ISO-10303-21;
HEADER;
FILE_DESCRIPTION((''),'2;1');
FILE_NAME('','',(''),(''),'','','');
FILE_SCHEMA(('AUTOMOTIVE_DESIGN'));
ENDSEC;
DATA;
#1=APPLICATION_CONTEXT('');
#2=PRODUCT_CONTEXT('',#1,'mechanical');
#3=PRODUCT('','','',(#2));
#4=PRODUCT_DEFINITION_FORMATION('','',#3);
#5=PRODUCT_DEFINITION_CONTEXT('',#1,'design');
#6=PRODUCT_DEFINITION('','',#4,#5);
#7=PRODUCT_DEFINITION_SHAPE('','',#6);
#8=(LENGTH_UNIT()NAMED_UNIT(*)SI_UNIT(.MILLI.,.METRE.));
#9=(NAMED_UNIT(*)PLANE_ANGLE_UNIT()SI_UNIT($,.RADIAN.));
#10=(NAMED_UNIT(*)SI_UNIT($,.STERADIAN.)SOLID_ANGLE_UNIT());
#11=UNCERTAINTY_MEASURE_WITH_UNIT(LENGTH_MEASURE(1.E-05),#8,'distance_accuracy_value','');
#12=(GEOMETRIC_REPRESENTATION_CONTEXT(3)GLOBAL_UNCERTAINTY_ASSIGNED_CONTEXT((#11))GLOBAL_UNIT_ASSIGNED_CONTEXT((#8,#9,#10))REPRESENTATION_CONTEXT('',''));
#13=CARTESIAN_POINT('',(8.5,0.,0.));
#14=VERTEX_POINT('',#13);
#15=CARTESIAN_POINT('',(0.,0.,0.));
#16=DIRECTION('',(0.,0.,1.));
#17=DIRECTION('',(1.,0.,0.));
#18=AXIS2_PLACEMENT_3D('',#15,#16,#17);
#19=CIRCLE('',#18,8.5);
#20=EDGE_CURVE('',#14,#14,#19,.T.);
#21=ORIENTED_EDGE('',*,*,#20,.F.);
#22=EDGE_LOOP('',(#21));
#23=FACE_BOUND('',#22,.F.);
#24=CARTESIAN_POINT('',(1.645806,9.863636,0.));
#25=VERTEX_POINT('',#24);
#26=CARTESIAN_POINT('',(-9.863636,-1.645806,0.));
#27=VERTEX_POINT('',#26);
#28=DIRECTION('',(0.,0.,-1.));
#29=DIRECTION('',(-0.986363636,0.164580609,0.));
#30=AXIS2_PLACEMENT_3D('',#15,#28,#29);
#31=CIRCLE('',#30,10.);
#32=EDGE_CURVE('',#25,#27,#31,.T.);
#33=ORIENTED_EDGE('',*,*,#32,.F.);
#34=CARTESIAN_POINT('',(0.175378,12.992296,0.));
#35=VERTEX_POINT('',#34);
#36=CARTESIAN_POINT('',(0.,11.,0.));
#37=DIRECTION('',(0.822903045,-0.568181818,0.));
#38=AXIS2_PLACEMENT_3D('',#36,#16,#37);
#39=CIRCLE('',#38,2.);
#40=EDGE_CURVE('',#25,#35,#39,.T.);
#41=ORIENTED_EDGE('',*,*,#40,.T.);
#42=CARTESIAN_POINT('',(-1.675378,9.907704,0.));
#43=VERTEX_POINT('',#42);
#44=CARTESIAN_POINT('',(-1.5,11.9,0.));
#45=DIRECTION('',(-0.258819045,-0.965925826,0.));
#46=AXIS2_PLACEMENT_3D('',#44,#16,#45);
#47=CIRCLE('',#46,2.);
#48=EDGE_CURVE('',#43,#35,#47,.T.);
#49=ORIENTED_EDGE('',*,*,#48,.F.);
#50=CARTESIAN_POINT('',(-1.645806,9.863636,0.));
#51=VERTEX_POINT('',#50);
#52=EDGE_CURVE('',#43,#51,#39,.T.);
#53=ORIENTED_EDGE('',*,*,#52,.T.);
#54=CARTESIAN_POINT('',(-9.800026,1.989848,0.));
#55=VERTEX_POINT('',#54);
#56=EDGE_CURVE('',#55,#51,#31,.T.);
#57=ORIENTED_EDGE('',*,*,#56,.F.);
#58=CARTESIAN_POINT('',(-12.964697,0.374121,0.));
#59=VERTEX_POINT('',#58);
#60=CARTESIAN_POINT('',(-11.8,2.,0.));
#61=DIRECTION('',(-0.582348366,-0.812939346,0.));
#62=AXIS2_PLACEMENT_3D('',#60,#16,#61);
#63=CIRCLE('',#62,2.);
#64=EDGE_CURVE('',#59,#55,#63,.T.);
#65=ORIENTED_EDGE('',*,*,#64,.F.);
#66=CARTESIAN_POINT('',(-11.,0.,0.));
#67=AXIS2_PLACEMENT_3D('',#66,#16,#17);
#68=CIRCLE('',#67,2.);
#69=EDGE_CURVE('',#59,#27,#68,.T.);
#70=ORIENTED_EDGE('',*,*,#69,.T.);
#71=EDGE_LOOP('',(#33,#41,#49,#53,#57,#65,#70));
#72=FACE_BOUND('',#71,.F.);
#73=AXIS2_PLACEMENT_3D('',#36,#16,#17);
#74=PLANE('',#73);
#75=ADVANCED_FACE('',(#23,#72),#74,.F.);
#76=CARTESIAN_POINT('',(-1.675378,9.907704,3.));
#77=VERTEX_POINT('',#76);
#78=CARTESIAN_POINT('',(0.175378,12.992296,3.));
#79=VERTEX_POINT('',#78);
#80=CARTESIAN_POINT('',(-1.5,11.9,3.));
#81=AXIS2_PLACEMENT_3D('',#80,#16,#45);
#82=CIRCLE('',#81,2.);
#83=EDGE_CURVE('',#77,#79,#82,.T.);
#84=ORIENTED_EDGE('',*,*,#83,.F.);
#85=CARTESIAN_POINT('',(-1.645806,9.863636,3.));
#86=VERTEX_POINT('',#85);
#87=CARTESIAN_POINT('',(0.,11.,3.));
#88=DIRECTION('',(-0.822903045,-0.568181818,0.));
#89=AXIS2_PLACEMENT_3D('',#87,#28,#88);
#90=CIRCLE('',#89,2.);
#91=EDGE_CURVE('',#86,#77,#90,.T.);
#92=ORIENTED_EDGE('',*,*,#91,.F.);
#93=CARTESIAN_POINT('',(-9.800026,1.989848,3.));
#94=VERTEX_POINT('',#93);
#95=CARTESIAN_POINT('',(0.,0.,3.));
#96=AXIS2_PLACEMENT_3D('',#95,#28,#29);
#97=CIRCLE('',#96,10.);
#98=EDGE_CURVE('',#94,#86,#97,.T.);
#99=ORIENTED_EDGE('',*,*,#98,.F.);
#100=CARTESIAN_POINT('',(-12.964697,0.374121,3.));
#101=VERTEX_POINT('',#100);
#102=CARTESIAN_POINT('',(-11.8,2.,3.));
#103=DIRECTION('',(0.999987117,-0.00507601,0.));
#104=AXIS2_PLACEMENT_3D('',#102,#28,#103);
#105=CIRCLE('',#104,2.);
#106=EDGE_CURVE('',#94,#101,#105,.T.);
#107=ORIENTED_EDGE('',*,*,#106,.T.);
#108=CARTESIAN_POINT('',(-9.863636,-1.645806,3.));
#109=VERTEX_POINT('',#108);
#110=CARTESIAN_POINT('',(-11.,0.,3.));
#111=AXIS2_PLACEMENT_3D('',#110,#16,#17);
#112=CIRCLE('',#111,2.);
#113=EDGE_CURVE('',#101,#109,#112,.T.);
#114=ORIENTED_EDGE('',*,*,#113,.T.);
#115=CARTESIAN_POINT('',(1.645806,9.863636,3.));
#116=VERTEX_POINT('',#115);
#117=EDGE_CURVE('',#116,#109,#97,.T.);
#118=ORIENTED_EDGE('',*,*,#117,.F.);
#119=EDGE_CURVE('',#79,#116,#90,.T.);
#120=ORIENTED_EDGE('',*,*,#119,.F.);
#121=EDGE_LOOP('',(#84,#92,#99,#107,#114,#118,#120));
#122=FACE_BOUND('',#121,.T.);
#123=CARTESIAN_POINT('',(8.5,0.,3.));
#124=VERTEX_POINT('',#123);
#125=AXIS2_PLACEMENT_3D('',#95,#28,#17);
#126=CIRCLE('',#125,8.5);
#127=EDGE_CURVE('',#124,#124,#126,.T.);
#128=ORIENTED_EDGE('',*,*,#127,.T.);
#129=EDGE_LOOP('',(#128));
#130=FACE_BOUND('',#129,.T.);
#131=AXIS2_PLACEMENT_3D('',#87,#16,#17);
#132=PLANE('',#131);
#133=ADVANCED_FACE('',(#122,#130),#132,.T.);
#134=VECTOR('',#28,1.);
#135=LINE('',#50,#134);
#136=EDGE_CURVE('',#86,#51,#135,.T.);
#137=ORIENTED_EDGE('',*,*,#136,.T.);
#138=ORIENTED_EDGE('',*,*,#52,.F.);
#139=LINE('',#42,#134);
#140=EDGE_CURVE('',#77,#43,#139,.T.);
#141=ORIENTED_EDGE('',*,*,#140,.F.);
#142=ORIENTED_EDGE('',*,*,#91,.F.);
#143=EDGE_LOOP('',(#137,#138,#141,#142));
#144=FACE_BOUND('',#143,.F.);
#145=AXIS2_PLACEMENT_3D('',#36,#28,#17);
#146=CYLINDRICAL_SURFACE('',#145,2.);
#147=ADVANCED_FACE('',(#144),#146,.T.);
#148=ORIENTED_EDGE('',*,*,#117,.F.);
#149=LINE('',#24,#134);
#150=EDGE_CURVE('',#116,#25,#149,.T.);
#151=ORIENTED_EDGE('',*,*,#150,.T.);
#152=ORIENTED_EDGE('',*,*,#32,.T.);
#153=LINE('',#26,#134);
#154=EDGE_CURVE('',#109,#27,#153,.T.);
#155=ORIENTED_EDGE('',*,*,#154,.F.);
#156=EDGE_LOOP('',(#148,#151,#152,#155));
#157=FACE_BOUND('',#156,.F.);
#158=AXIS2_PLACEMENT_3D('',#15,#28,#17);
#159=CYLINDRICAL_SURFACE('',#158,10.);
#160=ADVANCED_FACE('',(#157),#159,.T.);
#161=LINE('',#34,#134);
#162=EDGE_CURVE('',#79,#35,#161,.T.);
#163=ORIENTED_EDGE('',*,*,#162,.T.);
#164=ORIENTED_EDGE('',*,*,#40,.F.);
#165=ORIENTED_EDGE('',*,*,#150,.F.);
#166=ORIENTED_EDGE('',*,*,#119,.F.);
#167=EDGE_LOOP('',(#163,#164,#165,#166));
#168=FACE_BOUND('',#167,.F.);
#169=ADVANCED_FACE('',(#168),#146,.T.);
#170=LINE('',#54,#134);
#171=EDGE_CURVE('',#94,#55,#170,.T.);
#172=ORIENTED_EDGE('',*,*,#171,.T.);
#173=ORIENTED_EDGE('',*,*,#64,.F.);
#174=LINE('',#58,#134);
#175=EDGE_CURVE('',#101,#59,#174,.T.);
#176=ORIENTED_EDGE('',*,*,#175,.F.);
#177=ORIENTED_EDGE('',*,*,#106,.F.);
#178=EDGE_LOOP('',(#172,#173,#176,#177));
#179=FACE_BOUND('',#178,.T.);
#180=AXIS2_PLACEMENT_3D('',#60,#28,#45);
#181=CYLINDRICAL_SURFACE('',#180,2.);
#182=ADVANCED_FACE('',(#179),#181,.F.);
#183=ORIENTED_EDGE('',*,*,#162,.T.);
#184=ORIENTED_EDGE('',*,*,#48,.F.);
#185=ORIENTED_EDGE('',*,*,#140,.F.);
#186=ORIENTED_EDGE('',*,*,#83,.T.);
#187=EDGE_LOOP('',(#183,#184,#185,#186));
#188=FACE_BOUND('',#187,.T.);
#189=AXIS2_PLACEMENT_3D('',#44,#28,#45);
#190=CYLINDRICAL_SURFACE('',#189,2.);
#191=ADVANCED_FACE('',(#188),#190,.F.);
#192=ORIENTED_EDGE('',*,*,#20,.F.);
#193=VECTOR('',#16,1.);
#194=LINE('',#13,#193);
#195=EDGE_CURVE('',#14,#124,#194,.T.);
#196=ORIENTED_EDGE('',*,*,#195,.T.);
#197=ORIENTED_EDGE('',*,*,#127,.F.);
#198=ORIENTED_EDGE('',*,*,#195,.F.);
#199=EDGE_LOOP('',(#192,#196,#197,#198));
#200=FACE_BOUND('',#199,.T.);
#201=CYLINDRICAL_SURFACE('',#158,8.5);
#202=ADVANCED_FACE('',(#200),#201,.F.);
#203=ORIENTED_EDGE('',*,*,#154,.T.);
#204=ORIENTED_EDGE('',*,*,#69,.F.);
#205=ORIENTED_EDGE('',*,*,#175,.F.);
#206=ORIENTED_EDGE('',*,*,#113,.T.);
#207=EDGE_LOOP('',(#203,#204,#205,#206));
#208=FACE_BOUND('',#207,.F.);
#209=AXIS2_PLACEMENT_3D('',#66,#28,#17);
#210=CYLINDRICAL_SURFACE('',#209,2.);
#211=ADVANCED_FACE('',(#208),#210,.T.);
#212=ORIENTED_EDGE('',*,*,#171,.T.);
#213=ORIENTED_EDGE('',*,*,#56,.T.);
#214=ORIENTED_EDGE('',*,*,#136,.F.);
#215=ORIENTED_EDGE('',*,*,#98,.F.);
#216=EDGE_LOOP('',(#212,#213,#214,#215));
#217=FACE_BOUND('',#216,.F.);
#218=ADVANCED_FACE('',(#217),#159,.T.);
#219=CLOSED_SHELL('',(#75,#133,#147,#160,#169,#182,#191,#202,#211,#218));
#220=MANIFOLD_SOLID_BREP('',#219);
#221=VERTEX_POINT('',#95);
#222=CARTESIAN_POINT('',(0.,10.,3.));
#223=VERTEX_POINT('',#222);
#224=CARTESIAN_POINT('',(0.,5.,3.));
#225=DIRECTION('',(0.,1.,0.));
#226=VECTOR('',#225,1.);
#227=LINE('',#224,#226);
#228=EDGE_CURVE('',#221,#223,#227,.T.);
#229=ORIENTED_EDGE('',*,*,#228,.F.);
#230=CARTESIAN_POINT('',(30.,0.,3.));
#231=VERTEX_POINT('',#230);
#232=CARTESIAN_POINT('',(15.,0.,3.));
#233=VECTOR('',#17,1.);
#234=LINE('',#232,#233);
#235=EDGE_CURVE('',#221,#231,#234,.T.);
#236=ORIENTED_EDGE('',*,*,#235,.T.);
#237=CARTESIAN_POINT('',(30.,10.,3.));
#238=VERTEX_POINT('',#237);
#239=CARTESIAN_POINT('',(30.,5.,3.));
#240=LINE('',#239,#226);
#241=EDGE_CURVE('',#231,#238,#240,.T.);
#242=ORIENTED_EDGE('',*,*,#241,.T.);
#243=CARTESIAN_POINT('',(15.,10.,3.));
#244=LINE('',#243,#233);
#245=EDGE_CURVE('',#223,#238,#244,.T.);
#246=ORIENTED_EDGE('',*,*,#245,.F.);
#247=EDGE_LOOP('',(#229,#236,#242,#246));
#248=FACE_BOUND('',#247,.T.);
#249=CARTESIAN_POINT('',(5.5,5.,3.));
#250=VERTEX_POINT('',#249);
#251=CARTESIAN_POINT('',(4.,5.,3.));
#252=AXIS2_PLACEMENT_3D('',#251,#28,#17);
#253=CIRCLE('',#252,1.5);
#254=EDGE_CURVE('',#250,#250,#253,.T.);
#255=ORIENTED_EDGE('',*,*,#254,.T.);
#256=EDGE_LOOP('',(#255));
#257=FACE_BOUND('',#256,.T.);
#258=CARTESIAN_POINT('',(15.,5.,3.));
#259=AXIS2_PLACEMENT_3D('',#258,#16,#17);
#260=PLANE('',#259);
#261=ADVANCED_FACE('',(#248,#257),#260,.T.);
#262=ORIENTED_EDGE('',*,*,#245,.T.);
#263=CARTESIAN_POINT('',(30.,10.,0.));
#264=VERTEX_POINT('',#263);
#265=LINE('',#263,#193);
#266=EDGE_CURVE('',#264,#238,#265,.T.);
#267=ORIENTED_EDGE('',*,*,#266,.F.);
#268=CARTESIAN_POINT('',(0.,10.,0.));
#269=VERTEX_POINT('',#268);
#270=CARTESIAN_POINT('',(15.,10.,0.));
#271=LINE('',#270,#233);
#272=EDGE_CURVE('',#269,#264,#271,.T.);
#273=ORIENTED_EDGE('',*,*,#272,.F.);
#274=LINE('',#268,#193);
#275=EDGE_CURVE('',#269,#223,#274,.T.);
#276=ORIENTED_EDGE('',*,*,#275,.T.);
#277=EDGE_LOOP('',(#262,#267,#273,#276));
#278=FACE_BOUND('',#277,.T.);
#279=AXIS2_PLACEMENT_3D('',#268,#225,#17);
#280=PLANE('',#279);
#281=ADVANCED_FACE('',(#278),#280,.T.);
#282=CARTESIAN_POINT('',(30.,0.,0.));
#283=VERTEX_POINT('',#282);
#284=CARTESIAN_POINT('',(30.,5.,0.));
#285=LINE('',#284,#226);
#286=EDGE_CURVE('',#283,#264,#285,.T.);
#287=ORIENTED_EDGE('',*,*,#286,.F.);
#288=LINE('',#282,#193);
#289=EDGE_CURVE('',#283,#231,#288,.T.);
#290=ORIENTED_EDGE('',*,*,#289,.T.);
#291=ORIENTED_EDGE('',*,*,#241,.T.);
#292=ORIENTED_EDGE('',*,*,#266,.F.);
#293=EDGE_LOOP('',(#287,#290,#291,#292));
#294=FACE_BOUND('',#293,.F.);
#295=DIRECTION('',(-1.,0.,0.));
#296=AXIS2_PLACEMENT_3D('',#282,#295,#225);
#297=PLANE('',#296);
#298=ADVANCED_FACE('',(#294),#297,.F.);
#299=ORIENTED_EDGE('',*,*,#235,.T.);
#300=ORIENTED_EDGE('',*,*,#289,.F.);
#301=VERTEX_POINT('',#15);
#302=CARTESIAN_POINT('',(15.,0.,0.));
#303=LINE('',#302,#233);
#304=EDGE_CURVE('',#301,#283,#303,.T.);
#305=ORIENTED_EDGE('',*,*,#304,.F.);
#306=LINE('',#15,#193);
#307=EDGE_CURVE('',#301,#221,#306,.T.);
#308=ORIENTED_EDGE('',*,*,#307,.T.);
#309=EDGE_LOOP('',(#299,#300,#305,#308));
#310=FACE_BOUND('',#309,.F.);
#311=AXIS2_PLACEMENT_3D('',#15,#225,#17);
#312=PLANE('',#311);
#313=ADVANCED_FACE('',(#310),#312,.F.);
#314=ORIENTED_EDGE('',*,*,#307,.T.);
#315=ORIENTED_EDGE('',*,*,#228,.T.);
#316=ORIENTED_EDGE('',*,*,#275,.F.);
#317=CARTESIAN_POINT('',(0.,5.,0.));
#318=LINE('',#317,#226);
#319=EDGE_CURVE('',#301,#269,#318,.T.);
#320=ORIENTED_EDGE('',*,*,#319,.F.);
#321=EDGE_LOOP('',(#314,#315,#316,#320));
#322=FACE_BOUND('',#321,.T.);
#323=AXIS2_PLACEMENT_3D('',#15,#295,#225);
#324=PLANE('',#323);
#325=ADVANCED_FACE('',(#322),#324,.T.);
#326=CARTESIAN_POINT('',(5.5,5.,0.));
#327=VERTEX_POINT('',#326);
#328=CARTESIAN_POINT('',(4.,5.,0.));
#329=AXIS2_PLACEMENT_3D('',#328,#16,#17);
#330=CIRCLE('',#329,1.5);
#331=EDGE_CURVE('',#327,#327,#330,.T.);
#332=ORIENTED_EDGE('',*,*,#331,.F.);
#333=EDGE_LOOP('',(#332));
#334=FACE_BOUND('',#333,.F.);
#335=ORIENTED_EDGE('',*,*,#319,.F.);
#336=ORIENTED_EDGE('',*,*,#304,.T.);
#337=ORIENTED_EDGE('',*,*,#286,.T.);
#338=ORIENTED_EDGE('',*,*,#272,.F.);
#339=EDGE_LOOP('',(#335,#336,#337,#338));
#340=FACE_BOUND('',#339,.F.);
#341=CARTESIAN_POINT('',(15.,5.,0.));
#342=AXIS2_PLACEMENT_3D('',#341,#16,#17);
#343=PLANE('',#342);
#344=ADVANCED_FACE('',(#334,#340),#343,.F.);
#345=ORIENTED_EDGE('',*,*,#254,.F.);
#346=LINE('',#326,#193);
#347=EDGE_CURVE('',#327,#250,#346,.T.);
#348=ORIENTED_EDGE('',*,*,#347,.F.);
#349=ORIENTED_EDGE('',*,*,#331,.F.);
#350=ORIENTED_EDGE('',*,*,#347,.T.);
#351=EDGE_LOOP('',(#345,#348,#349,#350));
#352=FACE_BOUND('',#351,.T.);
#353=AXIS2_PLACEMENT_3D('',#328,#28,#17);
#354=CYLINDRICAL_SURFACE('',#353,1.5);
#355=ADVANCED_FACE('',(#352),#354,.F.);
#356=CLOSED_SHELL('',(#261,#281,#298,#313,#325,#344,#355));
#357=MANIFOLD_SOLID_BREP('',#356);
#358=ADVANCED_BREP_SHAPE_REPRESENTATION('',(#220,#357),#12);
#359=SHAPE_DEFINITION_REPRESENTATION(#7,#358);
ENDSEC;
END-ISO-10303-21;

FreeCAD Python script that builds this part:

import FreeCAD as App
import Part
import Sketcher
Q = App.Units.Quantity


def add_polygon(sketch, points):
    """Adds a closed chain of lines whose ends are joined by coincident constraints."""
    first, n = sketch.GeometryCount, len(points)
    for a, b in zip(points, points[1:] + points[:1]):
        sketch.addGeometry(Part.LineSegment(App.Vector(*a, 0), App.Vector(*b, 0)), False)
    for i in range(n):
        sketch.addConstraint(Sketcher.Constraint("Coincident", first + i, 2, first + (i + 1) % n, 1))

doc = App.newDocument("Part")
body = doc.addObject("PartDesign::Body", "Body")

# Sketch on XY plane
sketch1 = body.newObject("Sketcher::SketchObject", "Sketch")
sketch1.AttachmentSupport = (doc.getObject("XY_Plane"), [""])
sketch1.MapMode = "FlatFace"
sketch1.addGeometry(Part.Circle(App.Vector(4, 5, 0), App.Vector(0, 0, 1), 1.5), False)
sketch1.addConstraint([
    Sketcher.Constraint("Diameter", 0, Q("3 mm")),
    Sketcher.Constraint("DistanceX", -1, 1, 0, 3, Q("4 mm")),
    Sketcher.Constraint("DistanceY", -1, 1, 0, 3, Q("5 mm")),
])
pad1 = body.newObject("PartDesign::Pad", "Pad")
pad1.Profile = sketch1
pad1.Length = 10
body2 = doc.addObject("PartDesign::Body", "Body001")

# Sketch on XY plane
sketch2 = body2.newObject("Sketcher::SketchObject", "Sketch001")
sketch2.AttachmentSupport = (doc.getObject("XY_Plane001"), [""])
sketch2.MapMode = "FlatFace"
add_polygon(sketch2, [(0, 10), (0, 0), (30, 0), (30, 10)])  # lines 0-3
sketch2.addConstraint([
    Sketcher.Constraint("Vertical", 0),
    Sketcher.Constraint("Horizontal", 1),
    Sketcher.Constraint("Vertical", 2),
    Sketcher.Constraint("Horizontal", 3),
    Sketcher.Constraint("Coincident", 0, 2, -1, 1),
    Sketcher.Constraint("DistanceX", 1, 1, 1, 2, Q("30 mm")),
    Sketcher.Constraint("DistanceY", 0, 2, 0, 1, Q("10 mm")),
])
pad2 = body2.newObject("PartDesign::Pad", "Pad001")
pad2.Profile = sketch2
pad2.Length = 3
doc.recompute()

boolean = body2.newObject("PartDesign::Boolean", "Boolean")
boolean.Type = "Cut"
boolean.addObjects([body])
body3 = doc.addObject("PartDesign::Body", "Body002")

# Sketch on XY plane
sketch3 = body3.newObject("Sketcher::SketchObject", "Sketch002")
sketch3.AttachmentSupport = (doc.getObject("XY_Plane002"), [""])
sketch3.MapMode = "FlatFace"
sketch3.addGeometry(Part.Circle(App.Vector(0, 0, 0), App.Vector(0, 0, 1), 2), False)
sketch3.addConstraint([
    Sketcher.Constraint("Coincident", 0, 3, -1, 1),
    Sketcher.Constraint("Diameter", 0, Q("4 mm")),
])
pad3 = body3.newObject("PartDesign::Pad", "Pad002")
pad3.Profile = sketch3
pad3.Length = 3
body4 = doc.addObject("PartDesign::Body", "Body003")
doc.recompute()

body3.Placement = App.Placement(App.Vector(-11.8, 2, 0), App.Rotation(App.Vector(0, 0, -1), 105))
boolean2 = body4.newObject("PartDesign::Boolean", "Boolean001")
boolean2.Type = "Fuse"
boolean2.addObjects([body3])
body5 = doc.addObject("PartDesign::Body", "Body004")

# Sketch on XY plane
sketch4 = body5.newObject("Sketcher::SketchObject", "Sketch003")
sketch4.AttachmentSupport = (doc.getObject("XY_Plane004"), [""])
sketch4.MapMode = "FlatFace"
sketch4.addGeometry(Part.Circle(App.Vector(0, 0, 0), App.Vector(0, 0, 1), 2), False)
sketch4.addConstraint([
    Sketcher.Constraint("Coincident", 0, 3, -1, 1),
    Sketcher.Constraint("Diameter", 0, Q("4 mm")),
])
pad4 = body5.newObject("PartDesign::Pad", "Pad003")
pad4.Profile = sketch4
pad4.Length = 3
body6 = doc.addObject("PartDesign::Body", "Body005")
doc.recompute()

body5.Placement = App.Placement(App.Vector(-1.5, 11.9, 0), App.Rotation(App.Vector(0, 0, -1), 105))
boolean3 = body6.newObject("PartDesign::Boolean", "Boolean002")
boolean3.Type = "Fuse"
boolean3.addObjects([body5])
body7 = doc.addObject("PartDesign::Body", "Body006")

# Sketch on XY plane
sketch5 = body7.newObject("Sketcher::SketchObject", "Sketch004")
sketch5.AttachmentSupport = (doc.getObject("XY_Plane006"), [""])
sketch5.MapMode = "FlatFace"
sketch5.addGeometry(Part.Circle(App.Vector(-11, 0, 0), App.Vector(0, 0, 1), 2), False)
sketch5.addConstraint([
    Sketcher.Constraint("PointOnObject", 0, 3, -1),
    Sketcher.Constraint("Diameter", 0, Q("4 mm")),
    Sketcher.Constraint("DistanceX", 0, 3, -1, 1, Q("11 mm")),
])
pad5 = body7.newObject("PartDesign::Pad", "Pad004")
pad5.Profile = sketch5
pad5.Length = 3
body8 = doc.addObject("PartDesign::Body", "Body007")

# Sketch on XY plane
sketch6 = body8.newObject("Sketcher::SketchObject", "Sketch005")
sketch6.AttachmentSupport = (doc.getObject("XY_Plane007"), [""])
sketch6.MapMode = "FlatFace"
sketch6.addGeometry(Part.Circle(App.Vector(0, 11, 0), App.Vector(0, 0, 1), 2), False)
sketch6.addConstraint([
    Sketcher.Constraint("PointOnObject", 0, 3, -2),
    Sketcher.Constraint("Diameter", 0, Q("4 mm")),
    Sketcher.Constraint("DistanceY", -1, 1, 0, 3, Q("11 mm")),
])
pad6 = body8.newObject("PartDesign::Pad", "Pad005")
pad6.Profile = sketch6
pad6.Length = 3
body9 = doc.addObject("PartDesign::Body", "Body008")

# Sketch on XY plane
sketch7 = body9.newObject("Sketcher::SketchObject", "Sketch006")
sketch7.AttachmentSupport = (doc.getObject("XY_Plane008"), [""])
sketch7.MapMode = "FlatFace"
sketch7.addGeometry(Part.Circle(App.Vector(0, 0, 0), App.Vector(0, 0, 1), 8), False)
sketch7.addConstraint([
    Sketcher.Constraint("Coincident", 0, 3, -1, 1),
    Sketcher.Constraint("Diameter", 0, Q("17 mm")),
])
pad7 = body9.newObject("PartDesign::Pad", "Pad006")
pad7.Profile = sketch7
pad7.Length = 10
body10 = doc.addObject("PartDesign::Body", "Body009")

# Sketch on XY plane
sketch8 = body10.newObject("Sketcher::SketchObject", "Sketch007")
sketch8.AttachmentSupport = (doc.getObject("XY_Plane009"), [""])
sketch8.MapMode = "FlatFace"
sketch8.addGeometry(Part.Circle(App.Vector(0, 0, 0), App.Vector(0, 0, 1), 10), False)
sketch8.addConstraint([
    Sketcher.Constraint("Coincident", 0, 3, -1, 1),
    Sketcher.Constraint("Diameter", 0, Q("20 mm")),
])
pad8 = body10.newObject("PartDesign::Pad", "Pad007")
pad8.Profile = sketch8
pad8.Length = 3
doc.recompute()

boolean4 = body10.newObject("PartDesign::Boolean", "Boolean003")
boolean4.Type = "Cut"
boolean4.addObjects([body9])
doc.recompute()

boolean5 = body10.newObject("PartDesign::Boolean", "Boolean004")
boolean5.Type = "Fuse"
boolean5.addObjects([body7])
doc.recompute()

boolean6 = body10.newObject("PartDesign::Boolean", "Boolean005")
boolean6.Type = "Fuse"
boolean6.addObjects([body8])
doc.recompute()

boolean7 = body10.newObject("PartDesign::Boolean", "Boolean006")
boolean7.Type = "Cut"
boolean7.addObjects([body6])
doc.recompute()

boolean8 = body10.newObject("PartDesign::Boolean", "Boolean007")
boolean8.Type = "Cut"
boolean8.addObjects([body4])

doc.recompute()
